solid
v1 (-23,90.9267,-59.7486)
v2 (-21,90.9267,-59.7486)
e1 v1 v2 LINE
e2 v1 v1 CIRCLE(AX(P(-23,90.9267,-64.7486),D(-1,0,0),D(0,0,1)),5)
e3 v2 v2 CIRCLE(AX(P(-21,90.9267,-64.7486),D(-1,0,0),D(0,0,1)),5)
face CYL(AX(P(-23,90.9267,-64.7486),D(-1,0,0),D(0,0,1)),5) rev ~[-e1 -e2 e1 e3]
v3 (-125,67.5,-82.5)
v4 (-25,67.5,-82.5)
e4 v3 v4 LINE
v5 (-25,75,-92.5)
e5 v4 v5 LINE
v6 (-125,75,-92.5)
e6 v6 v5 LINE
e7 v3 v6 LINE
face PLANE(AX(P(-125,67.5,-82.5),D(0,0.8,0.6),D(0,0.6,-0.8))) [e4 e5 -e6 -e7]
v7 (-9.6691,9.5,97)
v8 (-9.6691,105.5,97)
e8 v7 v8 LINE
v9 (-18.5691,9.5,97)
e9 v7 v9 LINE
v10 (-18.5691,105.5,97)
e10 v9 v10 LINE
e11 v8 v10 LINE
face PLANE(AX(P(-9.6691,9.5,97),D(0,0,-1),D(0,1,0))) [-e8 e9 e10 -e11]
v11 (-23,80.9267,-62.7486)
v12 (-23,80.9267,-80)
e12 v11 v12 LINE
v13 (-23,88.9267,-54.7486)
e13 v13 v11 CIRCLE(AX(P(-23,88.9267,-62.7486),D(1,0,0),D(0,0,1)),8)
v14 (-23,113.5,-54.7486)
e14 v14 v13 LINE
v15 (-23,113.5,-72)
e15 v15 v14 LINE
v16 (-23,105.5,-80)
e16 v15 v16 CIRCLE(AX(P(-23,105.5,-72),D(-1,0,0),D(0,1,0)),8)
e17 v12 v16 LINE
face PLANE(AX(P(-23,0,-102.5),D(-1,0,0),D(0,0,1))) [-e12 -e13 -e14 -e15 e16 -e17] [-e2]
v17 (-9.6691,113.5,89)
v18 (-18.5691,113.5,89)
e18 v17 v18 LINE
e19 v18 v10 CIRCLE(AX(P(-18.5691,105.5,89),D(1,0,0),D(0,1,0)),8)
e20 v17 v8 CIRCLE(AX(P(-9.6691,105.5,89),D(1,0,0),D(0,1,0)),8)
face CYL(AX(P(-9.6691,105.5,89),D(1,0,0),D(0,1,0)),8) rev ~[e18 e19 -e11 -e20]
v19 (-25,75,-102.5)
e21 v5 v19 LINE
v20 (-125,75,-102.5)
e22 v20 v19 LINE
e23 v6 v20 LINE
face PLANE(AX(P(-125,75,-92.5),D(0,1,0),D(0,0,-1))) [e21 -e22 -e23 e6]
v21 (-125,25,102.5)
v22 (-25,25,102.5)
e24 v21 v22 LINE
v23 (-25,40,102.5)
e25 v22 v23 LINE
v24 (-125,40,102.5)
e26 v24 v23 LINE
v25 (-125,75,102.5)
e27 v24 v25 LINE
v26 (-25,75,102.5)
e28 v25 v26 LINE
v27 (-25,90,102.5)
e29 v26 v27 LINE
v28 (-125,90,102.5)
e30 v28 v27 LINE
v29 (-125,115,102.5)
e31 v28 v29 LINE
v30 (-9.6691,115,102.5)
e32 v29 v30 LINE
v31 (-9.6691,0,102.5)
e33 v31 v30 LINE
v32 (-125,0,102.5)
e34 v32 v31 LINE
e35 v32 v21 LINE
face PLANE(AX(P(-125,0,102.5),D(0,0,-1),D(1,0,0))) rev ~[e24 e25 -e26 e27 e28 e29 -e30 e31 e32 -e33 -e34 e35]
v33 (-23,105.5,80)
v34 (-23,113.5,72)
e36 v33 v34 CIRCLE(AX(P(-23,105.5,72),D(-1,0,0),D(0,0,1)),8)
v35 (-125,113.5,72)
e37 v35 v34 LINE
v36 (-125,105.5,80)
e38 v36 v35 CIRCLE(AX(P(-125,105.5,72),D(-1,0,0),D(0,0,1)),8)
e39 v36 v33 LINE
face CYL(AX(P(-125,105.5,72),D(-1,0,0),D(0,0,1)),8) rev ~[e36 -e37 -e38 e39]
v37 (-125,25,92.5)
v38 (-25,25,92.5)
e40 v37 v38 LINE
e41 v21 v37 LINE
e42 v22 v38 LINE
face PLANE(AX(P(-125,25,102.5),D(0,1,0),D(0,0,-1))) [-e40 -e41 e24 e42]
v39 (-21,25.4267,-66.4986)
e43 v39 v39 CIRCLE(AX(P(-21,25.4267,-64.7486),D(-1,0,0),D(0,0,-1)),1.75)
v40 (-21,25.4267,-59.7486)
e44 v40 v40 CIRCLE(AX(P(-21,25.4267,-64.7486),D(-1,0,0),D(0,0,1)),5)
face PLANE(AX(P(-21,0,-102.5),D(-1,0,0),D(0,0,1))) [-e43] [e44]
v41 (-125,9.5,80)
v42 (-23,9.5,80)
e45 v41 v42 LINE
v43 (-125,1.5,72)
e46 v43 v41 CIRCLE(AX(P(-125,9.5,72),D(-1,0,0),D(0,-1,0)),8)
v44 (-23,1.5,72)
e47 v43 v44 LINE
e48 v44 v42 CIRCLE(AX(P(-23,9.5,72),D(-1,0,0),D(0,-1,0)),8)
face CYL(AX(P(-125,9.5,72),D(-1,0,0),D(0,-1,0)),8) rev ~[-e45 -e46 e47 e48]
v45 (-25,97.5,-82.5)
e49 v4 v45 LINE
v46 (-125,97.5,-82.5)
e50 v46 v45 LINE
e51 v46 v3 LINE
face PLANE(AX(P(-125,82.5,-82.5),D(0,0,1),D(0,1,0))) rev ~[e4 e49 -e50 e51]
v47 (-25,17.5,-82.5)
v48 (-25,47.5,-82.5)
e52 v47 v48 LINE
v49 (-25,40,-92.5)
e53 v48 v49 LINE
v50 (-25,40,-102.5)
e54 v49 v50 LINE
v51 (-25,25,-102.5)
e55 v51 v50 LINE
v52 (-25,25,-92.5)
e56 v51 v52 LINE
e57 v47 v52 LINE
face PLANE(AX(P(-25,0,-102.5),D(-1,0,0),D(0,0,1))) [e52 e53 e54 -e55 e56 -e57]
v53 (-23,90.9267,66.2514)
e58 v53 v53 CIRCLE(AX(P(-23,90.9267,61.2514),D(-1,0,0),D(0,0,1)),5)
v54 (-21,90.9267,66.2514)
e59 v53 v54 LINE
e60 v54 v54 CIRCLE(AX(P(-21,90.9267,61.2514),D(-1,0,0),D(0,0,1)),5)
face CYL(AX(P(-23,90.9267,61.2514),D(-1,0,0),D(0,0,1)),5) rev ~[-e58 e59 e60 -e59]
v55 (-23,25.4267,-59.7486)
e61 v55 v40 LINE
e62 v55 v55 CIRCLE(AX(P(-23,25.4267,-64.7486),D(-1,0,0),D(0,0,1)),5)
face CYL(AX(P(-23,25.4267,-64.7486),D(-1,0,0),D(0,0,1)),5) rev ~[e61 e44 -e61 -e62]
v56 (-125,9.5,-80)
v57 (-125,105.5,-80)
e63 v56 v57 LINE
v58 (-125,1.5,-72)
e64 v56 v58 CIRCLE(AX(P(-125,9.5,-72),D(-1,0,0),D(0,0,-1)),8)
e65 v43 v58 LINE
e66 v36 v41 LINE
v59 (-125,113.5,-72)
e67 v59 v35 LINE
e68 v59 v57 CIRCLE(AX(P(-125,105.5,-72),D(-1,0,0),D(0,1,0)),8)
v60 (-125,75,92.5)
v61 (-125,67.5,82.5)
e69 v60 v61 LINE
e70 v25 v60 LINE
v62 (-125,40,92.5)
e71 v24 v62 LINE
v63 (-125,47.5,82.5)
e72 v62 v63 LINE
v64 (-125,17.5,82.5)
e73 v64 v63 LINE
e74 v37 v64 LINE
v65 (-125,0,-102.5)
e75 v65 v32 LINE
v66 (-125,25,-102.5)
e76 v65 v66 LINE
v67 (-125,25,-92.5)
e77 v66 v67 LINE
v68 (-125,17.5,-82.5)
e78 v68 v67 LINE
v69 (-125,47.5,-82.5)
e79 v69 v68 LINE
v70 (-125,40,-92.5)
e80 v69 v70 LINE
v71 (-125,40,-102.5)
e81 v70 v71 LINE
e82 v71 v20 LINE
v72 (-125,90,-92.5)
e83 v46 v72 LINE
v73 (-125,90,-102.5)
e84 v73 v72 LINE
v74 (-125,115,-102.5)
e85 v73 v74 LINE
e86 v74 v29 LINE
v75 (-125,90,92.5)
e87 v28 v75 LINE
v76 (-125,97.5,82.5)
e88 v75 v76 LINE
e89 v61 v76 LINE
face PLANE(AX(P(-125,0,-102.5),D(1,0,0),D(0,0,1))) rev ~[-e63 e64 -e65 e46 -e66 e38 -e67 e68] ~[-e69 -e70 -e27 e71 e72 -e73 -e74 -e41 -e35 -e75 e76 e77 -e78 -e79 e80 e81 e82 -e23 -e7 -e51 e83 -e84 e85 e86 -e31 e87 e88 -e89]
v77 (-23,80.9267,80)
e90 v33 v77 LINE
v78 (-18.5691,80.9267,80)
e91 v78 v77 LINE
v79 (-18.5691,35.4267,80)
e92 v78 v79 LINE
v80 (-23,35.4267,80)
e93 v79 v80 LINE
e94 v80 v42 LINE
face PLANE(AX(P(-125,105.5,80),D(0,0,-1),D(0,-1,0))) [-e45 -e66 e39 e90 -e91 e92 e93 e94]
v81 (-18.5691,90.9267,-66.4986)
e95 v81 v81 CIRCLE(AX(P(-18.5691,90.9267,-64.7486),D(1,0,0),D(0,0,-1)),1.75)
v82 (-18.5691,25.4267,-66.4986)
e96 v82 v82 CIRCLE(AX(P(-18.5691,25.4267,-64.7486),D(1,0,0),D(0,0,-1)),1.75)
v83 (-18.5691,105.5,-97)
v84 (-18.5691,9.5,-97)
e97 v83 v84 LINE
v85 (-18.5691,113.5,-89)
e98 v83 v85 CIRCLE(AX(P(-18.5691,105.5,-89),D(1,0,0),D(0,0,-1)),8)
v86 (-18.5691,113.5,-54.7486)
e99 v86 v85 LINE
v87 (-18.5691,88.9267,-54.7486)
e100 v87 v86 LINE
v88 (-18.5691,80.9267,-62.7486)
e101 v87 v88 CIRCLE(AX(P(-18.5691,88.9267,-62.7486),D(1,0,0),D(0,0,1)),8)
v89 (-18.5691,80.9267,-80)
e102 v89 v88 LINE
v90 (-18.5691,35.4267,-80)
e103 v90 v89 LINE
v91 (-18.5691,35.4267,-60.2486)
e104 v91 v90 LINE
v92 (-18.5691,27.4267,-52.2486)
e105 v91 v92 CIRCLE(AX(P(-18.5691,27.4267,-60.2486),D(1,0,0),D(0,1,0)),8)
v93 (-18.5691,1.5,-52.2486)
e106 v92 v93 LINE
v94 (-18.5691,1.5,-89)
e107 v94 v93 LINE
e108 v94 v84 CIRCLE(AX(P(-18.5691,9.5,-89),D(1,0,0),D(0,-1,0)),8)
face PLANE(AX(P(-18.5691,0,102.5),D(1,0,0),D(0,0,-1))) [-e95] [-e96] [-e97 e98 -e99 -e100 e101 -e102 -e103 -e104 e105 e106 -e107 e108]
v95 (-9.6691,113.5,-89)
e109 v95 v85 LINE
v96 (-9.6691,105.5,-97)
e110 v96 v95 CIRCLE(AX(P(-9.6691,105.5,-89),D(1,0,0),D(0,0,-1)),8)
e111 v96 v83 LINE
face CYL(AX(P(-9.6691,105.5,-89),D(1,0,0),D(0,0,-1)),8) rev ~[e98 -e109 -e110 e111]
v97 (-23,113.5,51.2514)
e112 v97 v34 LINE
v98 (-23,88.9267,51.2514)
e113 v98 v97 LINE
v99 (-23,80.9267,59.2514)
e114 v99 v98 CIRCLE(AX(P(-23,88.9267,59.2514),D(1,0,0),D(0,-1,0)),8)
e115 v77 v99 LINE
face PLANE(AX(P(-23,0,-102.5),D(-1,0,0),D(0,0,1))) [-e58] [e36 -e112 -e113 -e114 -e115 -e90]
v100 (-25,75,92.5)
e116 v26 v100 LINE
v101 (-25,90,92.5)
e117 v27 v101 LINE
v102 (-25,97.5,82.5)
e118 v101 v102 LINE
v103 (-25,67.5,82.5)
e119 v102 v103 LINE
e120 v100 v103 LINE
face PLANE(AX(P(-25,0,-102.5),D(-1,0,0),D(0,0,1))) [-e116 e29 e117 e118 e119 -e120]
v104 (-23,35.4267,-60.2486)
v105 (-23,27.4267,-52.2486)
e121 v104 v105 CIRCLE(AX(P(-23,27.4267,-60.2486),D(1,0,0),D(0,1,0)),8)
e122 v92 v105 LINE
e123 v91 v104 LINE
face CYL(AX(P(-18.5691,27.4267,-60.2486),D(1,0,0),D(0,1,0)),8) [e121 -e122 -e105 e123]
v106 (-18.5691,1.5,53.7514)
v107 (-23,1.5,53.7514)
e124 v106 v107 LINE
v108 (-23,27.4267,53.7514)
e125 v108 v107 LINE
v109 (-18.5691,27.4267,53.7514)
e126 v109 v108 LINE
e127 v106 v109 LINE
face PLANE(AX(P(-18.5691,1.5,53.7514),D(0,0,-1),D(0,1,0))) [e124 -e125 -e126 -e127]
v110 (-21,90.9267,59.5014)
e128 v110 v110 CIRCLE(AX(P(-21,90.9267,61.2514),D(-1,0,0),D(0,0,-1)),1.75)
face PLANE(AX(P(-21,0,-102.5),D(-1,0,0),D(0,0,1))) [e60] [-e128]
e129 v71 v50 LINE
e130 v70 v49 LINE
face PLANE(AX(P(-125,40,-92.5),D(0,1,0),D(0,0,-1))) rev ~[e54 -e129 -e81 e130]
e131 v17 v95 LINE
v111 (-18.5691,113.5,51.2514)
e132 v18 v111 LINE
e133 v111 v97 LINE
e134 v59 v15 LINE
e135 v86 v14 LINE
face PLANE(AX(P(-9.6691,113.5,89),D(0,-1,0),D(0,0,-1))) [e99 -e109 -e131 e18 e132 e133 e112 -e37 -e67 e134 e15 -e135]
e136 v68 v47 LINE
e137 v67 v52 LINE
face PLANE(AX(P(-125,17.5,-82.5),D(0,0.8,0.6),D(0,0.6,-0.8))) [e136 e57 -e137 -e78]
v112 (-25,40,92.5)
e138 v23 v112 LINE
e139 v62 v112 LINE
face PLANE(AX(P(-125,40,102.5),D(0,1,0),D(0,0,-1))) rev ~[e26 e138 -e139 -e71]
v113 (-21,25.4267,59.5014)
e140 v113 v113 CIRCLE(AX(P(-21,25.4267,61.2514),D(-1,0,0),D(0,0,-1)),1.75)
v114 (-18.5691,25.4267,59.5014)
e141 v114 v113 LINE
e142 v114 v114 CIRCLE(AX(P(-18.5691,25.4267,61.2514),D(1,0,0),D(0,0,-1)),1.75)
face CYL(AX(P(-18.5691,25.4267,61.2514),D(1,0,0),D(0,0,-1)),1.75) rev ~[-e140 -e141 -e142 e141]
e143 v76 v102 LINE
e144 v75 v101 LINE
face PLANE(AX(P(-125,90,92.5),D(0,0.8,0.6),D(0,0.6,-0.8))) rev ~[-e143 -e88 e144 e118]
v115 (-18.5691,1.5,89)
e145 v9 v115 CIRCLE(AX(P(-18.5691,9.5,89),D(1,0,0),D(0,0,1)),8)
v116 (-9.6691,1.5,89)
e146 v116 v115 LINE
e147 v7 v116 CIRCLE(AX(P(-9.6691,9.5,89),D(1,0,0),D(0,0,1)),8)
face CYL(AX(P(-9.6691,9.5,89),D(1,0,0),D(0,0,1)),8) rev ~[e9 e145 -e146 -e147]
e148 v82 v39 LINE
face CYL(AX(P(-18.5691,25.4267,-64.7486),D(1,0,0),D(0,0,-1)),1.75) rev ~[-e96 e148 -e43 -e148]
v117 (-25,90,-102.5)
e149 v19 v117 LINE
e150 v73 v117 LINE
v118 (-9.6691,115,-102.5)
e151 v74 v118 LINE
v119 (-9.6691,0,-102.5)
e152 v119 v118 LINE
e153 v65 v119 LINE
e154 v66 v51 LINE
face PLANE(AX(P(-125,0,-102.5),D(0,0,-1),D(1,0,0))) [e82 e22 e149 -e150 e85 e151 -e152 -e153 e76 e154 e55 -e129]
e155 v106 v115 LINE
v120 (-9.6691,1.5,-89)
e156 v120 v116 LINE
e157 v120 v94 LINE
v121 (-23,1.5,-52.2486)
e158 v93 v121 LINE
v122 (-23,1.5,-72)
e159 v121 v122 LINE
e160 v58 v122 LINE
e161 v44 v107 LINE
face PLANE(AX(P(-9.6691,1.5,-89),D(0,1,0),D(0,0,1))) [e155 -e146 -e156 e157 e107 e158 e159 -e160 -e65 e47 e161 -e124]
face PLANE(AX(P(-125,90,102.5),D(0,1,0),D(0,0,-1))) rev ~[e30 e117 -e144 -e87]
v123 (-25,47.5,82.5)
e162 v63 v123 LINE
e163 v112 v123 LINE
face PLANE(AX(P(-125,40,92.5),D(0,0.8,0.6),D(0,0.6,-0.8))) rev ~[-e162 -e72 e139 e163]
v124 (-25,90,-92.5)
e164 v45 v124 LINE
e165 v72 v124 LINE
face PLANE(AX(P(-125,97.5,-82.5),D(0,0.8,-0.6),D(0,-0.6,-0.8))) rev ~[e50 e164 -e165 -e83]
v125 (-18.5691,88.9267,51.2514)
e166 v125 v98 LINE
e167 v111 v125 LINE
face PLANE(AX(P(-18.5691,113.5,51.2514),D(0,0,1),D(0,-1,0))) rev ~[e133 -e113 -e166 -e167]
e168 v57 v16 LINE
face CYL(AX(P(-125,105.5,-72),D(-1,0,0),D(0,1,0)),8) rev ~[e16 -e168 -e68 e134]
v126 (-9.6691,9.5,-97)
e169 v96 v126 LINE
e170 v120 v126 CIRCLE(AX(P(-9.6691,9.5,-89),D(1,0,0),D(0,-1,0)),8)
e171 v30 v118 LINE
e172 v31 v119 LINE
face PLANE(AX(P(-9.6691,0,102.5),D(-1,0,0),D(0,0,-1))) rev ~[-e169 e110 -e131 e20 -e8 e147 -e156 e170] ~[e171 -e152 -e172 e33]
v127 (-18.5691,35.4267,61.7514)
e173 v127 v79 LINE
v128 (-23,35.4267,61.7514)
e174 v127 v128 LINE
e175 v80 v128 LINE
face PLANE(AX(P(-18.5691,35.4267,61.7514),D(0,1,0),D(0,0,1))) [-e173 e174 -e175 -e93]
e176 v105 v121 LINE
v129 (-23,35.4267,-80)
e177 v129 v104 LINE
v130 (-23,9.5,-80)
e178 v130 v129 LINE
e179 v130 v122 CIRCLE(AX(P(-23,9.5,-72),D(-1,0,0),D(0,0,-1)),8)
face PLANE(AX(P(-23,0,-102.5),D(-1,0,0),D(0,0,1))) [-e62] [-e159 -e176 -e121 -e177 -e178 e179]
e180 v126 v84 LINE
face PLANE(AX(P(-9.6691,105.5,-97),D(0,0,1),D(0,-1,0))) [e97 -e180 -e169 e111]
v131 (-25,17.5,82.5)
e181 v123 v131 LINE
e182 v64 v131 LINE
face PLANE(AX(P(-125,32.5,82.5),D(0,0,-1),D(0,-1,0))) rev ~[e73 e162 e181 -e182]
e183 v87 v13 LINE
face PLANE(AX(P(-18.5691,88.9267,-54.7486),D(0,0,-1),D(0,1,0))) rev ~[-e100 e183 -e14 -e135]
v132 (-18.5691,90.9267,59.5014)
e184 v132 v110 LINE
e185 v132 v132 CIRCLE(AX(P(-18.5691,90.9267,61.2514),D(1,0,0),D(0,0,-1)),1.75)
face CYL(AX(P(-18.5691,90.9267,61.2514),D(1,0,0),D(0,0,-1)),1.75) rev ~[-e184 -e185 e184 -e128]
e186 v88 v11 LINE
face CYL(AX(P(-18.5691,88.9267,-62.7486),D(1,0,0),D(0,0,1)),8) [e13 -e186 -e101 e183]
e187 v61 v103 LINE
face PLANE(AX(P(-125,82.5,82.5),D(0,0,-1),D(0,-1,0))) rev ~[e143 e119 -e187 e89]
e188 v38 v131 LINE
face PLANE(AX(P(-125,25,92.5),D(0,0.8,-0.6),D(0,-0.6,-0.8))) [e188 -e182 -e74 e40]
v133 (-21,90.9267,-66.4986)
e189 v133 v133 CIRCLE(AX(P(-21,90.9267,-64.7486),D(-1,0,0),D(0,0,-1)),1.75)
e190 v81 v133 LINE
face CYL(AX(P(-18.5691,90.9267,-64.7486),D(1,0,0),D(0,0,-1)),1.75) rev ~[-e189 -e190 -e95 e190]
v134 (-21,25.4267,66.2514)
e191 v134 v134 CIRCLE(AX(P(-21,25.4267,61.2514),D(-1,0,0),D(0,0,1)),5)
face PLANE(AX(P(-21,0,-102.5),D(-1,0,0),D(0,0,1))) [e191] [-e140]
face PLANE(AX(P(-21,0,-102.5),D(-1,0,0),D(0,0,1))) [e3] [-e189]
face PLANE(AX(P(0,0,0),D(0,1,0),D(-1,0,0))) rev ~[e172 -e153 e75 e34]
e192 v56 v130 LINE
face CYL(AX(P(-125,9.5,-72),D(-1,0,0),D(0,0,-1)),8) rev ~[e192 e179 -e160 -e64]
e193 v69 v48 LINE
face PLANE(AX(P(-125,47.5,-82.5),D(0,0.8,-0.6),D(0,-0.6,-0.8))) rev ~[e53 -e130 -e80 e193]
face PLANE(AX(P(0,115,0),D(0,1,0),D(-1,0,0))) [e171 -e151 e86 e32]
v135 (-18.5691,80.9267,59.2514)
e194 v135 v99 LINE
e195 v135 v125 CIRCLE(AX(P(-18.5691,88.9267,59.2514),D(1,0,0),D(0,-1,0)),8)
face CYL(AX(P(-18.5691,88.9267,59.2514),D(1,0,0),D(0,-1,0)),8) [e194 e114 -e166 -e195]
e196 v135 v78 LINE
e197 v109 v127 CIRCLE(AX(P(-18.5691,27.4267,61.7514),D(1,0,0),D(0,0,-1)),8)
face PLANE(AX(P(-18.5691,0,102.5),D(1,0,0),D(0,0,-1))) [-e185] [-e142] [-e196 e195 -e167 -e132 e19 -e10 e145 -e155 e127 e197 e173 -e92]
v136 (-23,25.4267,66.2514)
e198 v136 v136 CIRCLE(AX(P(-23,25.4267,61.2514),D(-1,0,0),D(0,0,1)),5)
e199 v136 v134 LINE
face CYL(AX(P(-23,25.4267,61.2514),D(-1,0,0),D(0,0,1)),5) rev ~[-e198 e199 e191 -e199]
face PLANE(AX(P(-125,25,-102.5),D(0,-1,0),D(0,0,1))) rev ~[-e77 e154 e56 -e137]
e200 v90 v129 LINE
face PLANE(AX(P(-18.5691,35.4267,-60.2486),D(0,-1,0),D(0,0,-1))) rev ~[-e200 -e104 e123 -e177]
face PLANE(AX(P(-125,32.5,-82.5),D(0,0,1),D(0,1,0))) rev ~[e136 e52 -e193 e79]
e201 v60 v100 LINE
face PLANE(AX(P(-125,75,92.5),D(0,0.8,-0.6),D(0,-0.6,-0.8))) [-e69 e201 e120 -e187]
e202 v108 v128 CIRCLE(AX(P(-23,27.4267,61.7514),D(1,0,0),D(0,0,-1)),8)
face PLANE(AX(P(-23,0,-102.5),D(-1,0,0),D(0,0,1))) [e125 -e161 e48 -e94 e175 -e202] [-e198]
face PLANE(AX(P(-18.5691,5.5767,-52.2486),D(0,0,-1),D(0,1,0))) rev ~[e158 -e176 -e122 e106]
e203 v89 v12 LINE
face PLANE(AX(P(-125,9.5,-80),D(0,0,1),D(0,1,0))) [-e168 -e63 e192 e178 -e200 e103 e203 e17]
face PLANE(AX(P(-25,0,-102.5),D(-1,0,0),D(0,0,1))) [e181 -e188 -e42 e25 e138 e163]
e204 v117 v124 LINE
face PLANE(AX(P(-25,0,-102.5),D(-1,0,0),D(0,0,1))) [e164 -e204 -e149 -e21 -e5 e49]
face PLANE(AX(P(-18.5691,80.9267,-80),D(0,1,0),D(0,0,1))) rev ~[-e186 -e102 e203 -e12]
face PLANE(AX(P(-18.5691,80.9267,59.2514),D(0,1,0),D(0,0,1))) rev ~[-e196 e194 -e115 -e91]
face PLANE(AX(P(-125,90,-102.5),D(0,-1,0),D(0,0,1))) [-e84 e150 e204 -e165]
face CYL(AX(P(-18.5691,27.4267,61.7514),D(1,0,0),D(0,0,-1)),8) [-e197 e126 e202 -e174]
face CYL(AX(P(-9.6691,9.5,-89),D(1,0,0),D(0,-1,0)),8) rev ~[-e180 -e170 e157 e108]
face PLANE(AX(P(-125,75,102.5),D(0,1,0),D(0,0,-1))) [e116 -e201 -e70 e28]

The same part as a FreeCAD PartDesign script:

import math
import FreeCAD as App
import Part
import Sketcher

V = App.Vector
Q = App.Units.Quantity


def add_polygon(sketch, points):
    """Adds a closed chain of lines whose ends are joined by coincident constraints."""
    first, n = sketch.GeometryCount, len(points)
    for a, b in zip(points, points[1:] + points[:1]):
        sketch.addGeometry(Part.LineSegment(App.Vector(*a, 0), App.Vector(*b, 0)), False)
    for i in range(n):
        sketch.addConstraint(Sketcher.Constraint("Coincident", first + i, 2, first + (i + 1) % n, 1))

doc = App.newDocument("Part")
params = doc.addObject("Spreadsheet::Sheet", "Params")
for row, (alias, value) in enumerate([
    ("pad1_length", "115 mm"),
    ("sketch2_radius", "8 mm"),
    ("sketch2_width", "96 mm"),
    ("sketch2_height", "144 mm"),
    ("pocket1_length", "102 mm"),
    ("sketch3_width", "15 mm"),
    ("sketch3_height", "10 mm"),
    ("sketch3_width2", "30 mm"),
    ("pocket2_length", "100 mm"),
    ("sketch4_radius", "8 mm"),
    ("sketch4_height", "178 mm"),
    ("pocket3_length", "8.9 mm"),
    ("sketch5_radius", "8 mm"),
    ("sketch5_diameter", "3.5 mm"),
    ("sketch5_height", "106 mm"),
    ("sketch5_width", "45.5 mm"),
    ("pocket4_length", "10 mm"),
    ("sketch6_diameter", "10 mm"),
    ("sketch6_diameter2", "3.5 mm"),
    ("pocket5_length", "2 mm"),
], start=1):
    params.set(f"A{row}", alias)
    params.set(f"B{row}", "=" + value)
    params.setAlias(f"B{row}", alias)

body = doc.addObject("PartDesign::Body", "Body")

# Sketch on XZ plane
sketch1 = body.newObject("Sketcher::SketchObject", "Sketch")
sketch1.AttachmentSupport = (doc.getObject("XZ_Plane"), [""])
sketch1.MapMode = "FlatFace"
add_polygon(sketch1, [(-10, -102), (-125, -102), (-125, 102), (-10, 102)])  # lines 0-3
sketch1.addConstraint(Sketcher.Constraint("Horizontal", 0))
sketch1.addConstraint(Sketcher.Constraint("Vertical", 1))
sketch1.addConstraint(Sketcher.Constraint("Horizontal", 2))
sketch1.addConstraint(Sketcher.Constraint("Vertical", 3))
sketch1.addConstraint(Sketcher.Constraint("DistanceX", 0, 2, -1, 1, Q("125 mm")))
sketch1.addConstraint(Sketcher.Constraint("DistanceY", 0, 2, -1, 1, Q("102.5 mm")))
sketch1.addConstraint(Sketcher.Constraint("DistanceY", -1, 1, 1, 2, Q("102.5 mm")))
sketch1.addConstraint(Sketcher.Constraint("DistanceX", 0, 2, 0, 1, Q("115.331 mm")))
pad1 = body.newObject("PartDesign::Pad", "Pad")
pad1.Profile = sketch1
pad1.setExpression("Length", "Params.pad1_length")
pad1.Reversed = True

# Sketch on YZ plane
sketch2 = body.newObject("Sketcher::SketchObject", "Sketch001")
sketch2.AttachmentSupport = (doc.getObject("YZ_Plane"), [""])
sketch2.MapMode = "FlatFace"
sketch2.AttachmentOffset = App.Placement(V(0, 0, -125), App.Rotation())
sketch2.addGeometry(Part.LineSegment(V(114, 72, 0), V(114, -72, 0)), False)
sketch2.addGeometry(Part.ArcOfCircle(Part.Circle(V(106, -72, 0), V(0, 0, 1), 8), math.radians(-90), math.radians(0)), False)
sketch2.addGeometry(Part.LineSegment(V(106, -80, 0), V(10, -80, 0)), False)
sketch2.addGeometry(Part.ArcOfCircle(Part.Circle(V(10, -72, 0), V(0, 0, 1), 8), math.radians(180), math.radians(270)), False)
sketch2.addGeometry(Part.LineSegment(V(2, -72, 0), V(2, 72, 0)), False)
sketch2.addGeometry(Part.ArcOfCircle(Part.Circle(V(10, 72, 0), V(0, 0, 1), 8), math.radians(90), math.radians(180)), False)
sketch2.addGeometry(Part.LineSegment(V(10, 80, 0), V(106, 80, 0)), False)
sketch2.addGeometry(Part.ArcOfCircle(Part.Circle(V(106, 72, 0), V(0, 0, 1), 8), math.radians(0), math.radians(90)), False)
sketch2.addConstraint(Sketcher.Constraint("Tangent", 0, 2, 1, 2))
sketch2.addConstraint(Sketcher.Constraint("Tangent", 1, 1, 2, 1))
sketch2.addConstraint(Sketcher.Constraint("Tangent", 2, 2, 3, 2))
sketch2.addConstraint(Sketcher.Constraint("Tangent", 3, 1, 4, 1))
sketch2.addConstraint(Sketcher.Constraint("Tangent", 4, 2, 5, 2))
sketch2.addConstraint(Sketcher.Constraint("Tangent", 5, 1, 6, 1))
sketch2.addConstraint(Sketcher.Constraint("Tangent", 6, 2, 7, 2))
sketch2.addConstraint(Sketcher.Constraint("Tangent", 7, 1, 0, 1))
sketch2.addConstraint(Sketcher.Constraint("Vertical", 0))
sketch2.addConstraint(Sketcher.Constraint("Horizontal", 2))
sketch2.addConstraint(Sketcher.Constraint("Vertical", 4))
sketch2.addConstraint(Sketcher.Constraint("Horizontal", 6))
sketch2.addConstraint(Sketcher.Constraint("Equal", 1, 3))
sketch2.addConstraint(Sketcher.Constraint("Equal", 3, 5))
sketch2.addConstraint(Sketcher.Constraint("Equal", 5, 7))
sketch2.addConstraint(Sketcher.Constraint("Radius", 1, Q("8 mm")))
sketch2.addConstraint(Sketcher.Constraint("DistanceX", -1, 1, 3, 1, Q("1.5 mm")))
sketch2.addConstraint(Sketcher.Constraint("DistanceX", 2, 2, 2, 1, Q("96 mm")))
sketch2.addConstraint(Sketcher.Constraint("DistanceY", 0, 2, 0, 1, Q("144 mm")))
sketch2.addConstraint(Sketcher.Constraint("DistanceY", 1, 3, -1, 1, Q("72 mm")))
sketch2.setExpression("Constraints[15]", "Params.sketch2_radius")
sketch2.setExpression("Constraints[17]", "Params.sketch2_width")
sketch2.setExpression("Constraints[18]", "Params.sketch2_height")
pocket1 = body.newObject("PartDesign::Pocket", "Pocket")
pocket1.Profile = sketch2
pocket1.setExpression("Length", "Params.pocket1_length")
pocket1.Reversed = True

# Sketch on YZ plane
sketch3 = body.newObject("Sketcher::SketchObject", "Sketch002")
sketch3.AttachmentSupport = (doc.getObject("YZ_Plane"), [""])
sketch3.MapMode = "FlatFace"
sketch3.AttachmentOffset = App.Placement(V(0, 0, -125), App.Rotation())
add_polygon(sketch3, [(75, 92), (75, 102), (90, 102), (90, 92), (98, 82), (68, 82)])  # lines 0-5
add_polygon(sketch3, [(25, 92), (25, 102), (40, 102), (40, 92), (48, 82), (18, 82)])  # lines 6-11
add_polygon(sketch3, [(90, -102), (75, -102), (75, -92), (68, -82), (98, -82), (90, -92)])  # lines 12-17
add_polygon(sketch3, [(40, -102), (25, -102), (25, -92), (18, -82), (48, -82), (40, -92)])  # lines 18-23
sketch3.addConstraint(Sketcher.Constraint("Vertical", 0))
sketch3.addConstraint(Sketcher.Constraint("Horizontal", 1))
sketch3.addConstraint(Sketcher.Constraint("Vertical", 2))
sketch3.addConstraint(Sketcher.Constraint("Horizontal", 4))
sketch3.addConstraint(Sketcher.Constraint("Vertical", 6))
sketch3.addConstraint(Sketcher.Constraint("Horizontal", 7))
sketch3.addConstraint(Sketcher.Constraint("Vertical", 8))
sketch3.addConstraint(Sketcher.Constraint("Horizontal", 10))
sketch3.addConstraint(Sketcher.Constraint("Horizontal", 12))
sketch3.addConstraint(Sketcher.Constraint("Vertical", 13))
sketch3.addConstraint(Sketcher.Constraint("Horizontal", 15))
sketch3.addConstraint(Sketcher.Constraint("Vertical", 17))
sketch3.addConstraint(Sketcher.Constraint("Horizontal", 18))
sketch3.addConstraint(Sketcher.Constraint("Vertical", 19))
sketch3.addConstraint(Sketcher.Constraint("Horizontal", 21))
sketch3.addConstraint(Sketcher.Constraint("Vertical", 23))
sketch3.addConstraint(Sketcher.Constraint("Symmetric", 0, 2, 12, 2, -1))
sketch3.addConstraint(Sketcher.Constraint("Symmetric", 4, 2, 14, 2, -1))
sketch3.addConstraint(Sketcher.Constraint("Symmetric", 2, 2, 16, 2, -1))
sketch3.addConstraint(Sketcher.Constraint("Symmetric", 6, 2, 18, 2, -1))
sketch3.addConstraint(Sketcher.Constraint("Symmetric", 10, 2, 20, 2, -1))
sketch3.addConstraint(Sketcher.Constraint("Symmetric", 8, 2, 22, 2, -1))
sketch3.addConstraint(Sketcher.Constraint("Parallel", 3, 9))
sketch3.addConstraint(Sketcher.Constraint("Parallel", 5, 11))
sketch3.addConstraint(Sketcher.Constraint("Parallel", 9, 14))
sketch3.addConstraint(Sketcher.Constraint("Parallel", 11, 16))
sketch3.addConstraint(Sketcher.Constraint("Parallel", 14, 20))
sketch3.addConstraint(Sketcher.Constraint("Parallel", 16, 22))
sketch3.addConstraint(Sketcher.Constraint("Horizontal", 2, 2, 5, 2))
sketch3.addConstraint(Sketcher.Constraint("Horizontal", 1, 2, 6, 2))
sketch3.addConstraint(Sketcher.Constraint("Horizontal", 5, 2, 8, 2))
sketch3.addConstraint(Sketcher.Constraint("Horizontal", 4, 2, 9, 2))
sketch3.addConstraint(Sketcher.Constraint("Horizontal", 8, 2, 11, 2))
sketch3.addConstraint(Sketcher.Constraint("Horizontal", 13, 2, 16, 2))
sketch3.addConstraint(Sketcher.Constraint("Equal", 1, 7))
sketch3.addConstraint(Sketcher.Constraint("DistanceX", 1, 1, 1, 2, Q("15 mm")))
sketch3.addConstraint(Sketcher.Constraint("DistanceY", 0, 1, 0, 2, Q("10 mm")))
sketch3.addConstraint(Sketcher.Constraint("DistanceX", -1, 1, 6, 2, Q("25 mm")))
sketch3.addConstraint(Sketcher.Constraint("DistanceY", 3, 2, 2, 2, Q("10 mm")))
sketch3.addConstraint(Sketcher.Constraint("DistanceX", 9, 2, 4, 2, Q("20 mm")))
sketch3.addConstraint(Sketcher.Constraint("DistanceX", 4, 2, 4, 1, Q("30 mm")))
sketch3.addConstraint(Sketcher.Constraint("DistanceY", 12, 2, 4, 2, Q("185 mm")))
sketch3.setExpression("Constraints[59]", "Params.sketch3_width")
sketch3.setExpression("Constraints[60]", "Params.sketch3_height")
sketch3.setExpression("Constraints[64]", "Params.sketch3_width2")
pocket2 = body.newObject("PartDesign::Pocket", "Pocket001")
pocket2.Profile = sketch3
pocket2.setExpression("Length", "Params.pocket2_length")
pocket2.Reversed = True

# Sketch on YZ plane
sketch4 = body.newObject("Sketcher::SketchObject", "Sketch003")
sketch4.AttachmentSupport = (doc.getObject("YZ_Plane"), [""])
sketch4.MapMode = "FlatFace"
sketch4.AttachmentOffset = App.Placement(V(0, 0, -9.6691), App.Rotation())
sketch4.addGeometry(Part.LineSegment(V(2, 89, 0), V(2, -89, 0)), False)
sketch4.addGeometry(Part.ArcOfCircle(Part.Circle(V(10, -89, 0), V(0, 0, 1), 8), math.radians(180), math.radians(270)), False)
sketch4.addGeometry(Part.LineSegment(V(10, -97, 0), V(106, -97, 0)), False)
sketch4.addGeometry(Part.ArcOfCircle(Part.Circle(V(106, -89, 0), V(0, 0, 1), 8), math.radians(-90), math.radians(0)), False)
sketch4.addGeometry(Part.LineSegment(V(114, -89, 0), V(114, 89, 0)), False)
sketch4.addGeometry(Part.ArcOfCircle(Part.Circle(V(106, 89, 0), V(0, 0, 1), 8), math.radians(0), math.radians(90)), False)
sketch4.addGeometry(Part.LineSegment(V(106, 97, 0), V(10, 97, 0)), False)
sketch4.addGeometry(Part.ArcOfCircle(Part.Circle(V(10, 89, 0), V(0, 0, 1), 8), math.radians(90), math.radians(180)), False)
sketch4.addConstraint(Sketcher.Constraint("Tangent", 0, 2, 1, 1))
sketch4.addConstraint(Sketcher.Constraint("Tangent", 1, 2, 2, 1))
sketch4.addConstraint(Sketcher.Constraint("Tangent", 2, 2, 3, 1))
sketch4.addConstraint(Sketcher.Constraint("Tangent", 3, 2, 4, 1))
sketch4.addConstraint(Sketcher.Constraint("Tangent", 4, 2, 5, 1))
sketch4.addConstraint(Sketcher.Constraint("Tangent", 5, 2, 6, 1))
sketch4.addConstraint(Sketcher.Constraint("Tangent", 6, 2, 7, 1))
sketch4.addConstraint(Sketcher.Constraint("Tangent", 7, 2, 0, 1))
sketch4.addConstraint(Sketcher.Constraint("Vertical", 0))
sketch4.addConstraint(Sketcher.Constraint("Horizontal", 2))
sketch4.addConstraint(Sketcher.Constraint("Vertical", 4))
sketch4.addConstraint(Sketcher.Constraint("Horizontal", 6))
sketch4.addConstraint(Sketcher.Constraint("Equal", 1, 3))
sketch4.addConstraint(Sketcher.Constraint("Equal", 3, 5))
sketch4.addConstraint(Sketcher.Constraint("Equal", 5, 7))
sketch4.addConstraint(Sketcher.Constraint("Radius", 1, Q("8 mm")))
sketch4.addConstraint(Sketcher.Constraint("DistanceX", 0, 2, 3, 2, Q("112 mm")))
sketch4.addConstraint(Sketcher.Constraint("DistanceY", 0, 2, 0, 1, Q("178 mm")))
sketch4.addConstraint(Sketcher.Constraint("DistanceY", 1, 3, -1, 1, Q("89 mm")))
sketch4.addConstraint(Sketcher.Constraint("DistanceX", -1, 1, 1, 3, Q("9.5 mm")))
sketch4.setExpression("Constraints[15]", "Params.sketch4_radius")
sketch4.setExpression("Constraints[17]", "Params.sketch4_height")
pocket3 = body.newObject("PartDesign::Pocket", "Pocket002")
pocket3.Profile = sketch4
pocket3.setExpression("Length", "Params.pocket3_length")

# Sketch on YZ plane
sketch5 = body.newObject("Sketcher::SketchObject", "Sketch004")
sketch5.AttachmentSupport = (doc.getObject("YZ_Plane"), [""])
sketch5.MapMode = "FlatFace"
sketch5.AttachmentOffset = App.Placement(V(0, 0, -18.5691), App.Rotation())
sketch5.addGeometry(Part.Circle(V(90.9, 61.3, 0), V(0, 0, 1), 1.8), False)
sketch5.addGeometry(Part.Circle(V(25.4, -64.7, 0), V(0, 0, 1), 1.8), False)
sketch5.addGeometry(Part.Circle(V(25.4, 61.3, 0), V(0, 0, 1), 1.8), False)
sketch5.addGeometry(Part.Circle(V(90.9, -64.7, 0), V(0, 0, 1), 1.8), False)
sketch5.addGeometry(Part.LineSegment(V(35.4, -60.2, 0), V(35.4, -80, 0)), False)
sketch5.addGeometry(Part.LineSegment(V(35.4, -80, 0), V(80.9, -80, 0)), False)
sketch5.addGeometry(Part.LineSegment(V(80.9, -80, 0), V(80.9, -62.7, 0)), False)
sketch5.addGeometry(Part.ArcOfCircle(Part.Circle(V(88.9, -62.7, 0), V(0, 0, 1), 8), math.radians(90), math.radians(180)), False)
sketch5.addGeometry(Part.LineSegment(V(88.9, -54.7, 0), V(113.5, -54.7, 0)), False)
sketch5.addGeometry(Part.LineSegment(V(113.5, -54.7, 0), V(113.5, 51.3, 0)), False)
sketch5.addGeometry(Part.LineSegment(V(113.5, 51.3, 0), V(88.9, 51.3, 0)), False)
sketch5.addGeometry(Part.ArcOfCircle(Part.Circle(V(88.9, 59.3, 0), V(0, 0, 1), 8), math.radians(180), math.radians(270)), False)
sketch5.addGeometry(Part.LineSegment(V(80.9, 59.3, 0), V(80.9, 80, 0)), False)
sketch5.addGeometry(Part.LineSegment(V(80.9, 80, 0), V(35.4, 80, 0)), False)
sketch5.addGeometry(Part.LineSegment(V(35.4, 80, 0), V(35.4, 61.8, 0)), False)
sketch5.addGeometry(Part.ArcOfCircle(Part.Circle(V(27.4, 61.8, 0), V(0, 0, 1), 8), math.radians(-90), math.radians(0)), False)
sketch5.addGeometry(Part.LineSegment(V(27.4, 53.8, 0), V(1.5, 53.8, 0)), False)
sketch5.addGeometry(Part.LineSegment(V(1.5, 53.8, 0), V(1.5, -52.2, 0)), False)
sketch5.addGeometry(Part.LineSegment(V(1.5, -52.2, 0), V(27.4, -52.2, 0)), False)
sketch5.addGeometry(Part.ArcOfCircle(Part.Circle(V(27.4, -60.2, 0), V(0, 0, 1), 8), math.radians(0), math.radians(90)), False)
sketch5.addConstraint(Sketcher.Constraint("Coincident", 4, 2, 5, 1))
sketch5.addConstraint(Sketcher.Constraint("Coincident", 5, 2, 6, 1))
sketch5.addConstraint(Sketcher.Constraint("Tangent", 6, 2, 7, 2))
sketch5.addConstraint(Sketcher.Constraint("Tangent", 7, 1, 8, 1))
sketch5.addConstraint(Sketcher.Constraint("Coincident", 8, 2, 9, 1))
sketch5.addConstraint(Sketcher.Constraint("Coincident", 9, 2, 10, 1))
sketch5.addConstraint(Sketcher.Constraint("Tangent", 10, 2, 11, 2))
sketch5.addConstraint(Sketcher.Constraint("Tangent", 11, 1, 12, 1))
sketch5.addConstraint(Sketcher.Constraint("Coincident", 12, 2, 13, 1))
sketch5.addConstraint(Sketcher.Constraint("Coincident", 13, 2, 14, 1))
sketch5.addConstraint(Sketcher.Constraint("Tangent", 14, 2, 15, 2))
sketch5.addConstraint(Sketcher.Constraint("Tangent", 15, 1, 16, 1))
sketch5.addConstraint(Sketcher.Constraint("Coincident", 16, 2, 17, 1))
sketch5.addConstraint(Sketcher.Constraint("Coincident", 17, 2, 18, 1))
sketch5.addConstraint(Sketcher.Constraint("Tangent", 18, 2, 19, 2))
sketch5.addConstraint(Sketcher.Constraint("Tangent", 19, 1, 4, 1))
sketch5.addConstraint(Sketcher.Constraint("Vertical", 4))
sketch5.addConstraint(Sketcher.Constraint("Horizontal", 5))
sketch5.addConstraint(Sketcher.Constraint("Vertical", 6))
sketch5.addConstraint(Sketcher.Constraint("Horizontal", 8))
sketch5.addConstraint(Sketcher.Constraint("Vertical", 9))
sketch5.addConstraint(Sketcher.Constraint("Horizontal", 10))
sketch5.addConstraint(Sketcher.Constraint("Vertical", 12))
sketch5.addConstraint(Sketcher.Constraint("Horizontal", 13))
sketch5.addConstraint(Sketcher.Constraint("Vertical", 14))
sketch5.addConstraint(Sketcher.Constraint("Horizontal", 16))
sketch5.addConstraint(Sketcher.Constraint("Vertical", 17))
sketch5.addConstraint(Sketcher.Constraint("Horizontal", 18))
sketch5.addConstraint(Sketcher.Constraint("Equal", 0, 1))
sketch5.addConstraint(Sketcher.Constraint("Equal", 1, 2))
sketch5.addConstraint(Sketcher.Constraint("Equal", 2, 3))
sketch5.addConstraint(Sketcher.Constraint("Equal", 7, 11))
sketch5.addConstraint(Sketcher.Constraint("Equal", 11, 15))
sketch5.addConstraint(Sketcher.Constraint("Equal", 15, 19))
sketch5.addConstraint(Sketcher.Constraint("Symmetric", 5, 2, 12, 2, -1))
sketch5.addConstraint(Sketcher.Constraint("Horizontal", 0, 3, 2, 3))
sketch5.addConstraint(Sketcher.Constraint("Horizontal", 1, 3, 3, 3))
sketch5.addConstraint(Sketcher.Constraint("Vertical", 1, 3, 2, 3))
sketch5.addConstraint(Sketcher.Constraint("Vertical", 0, 3, 3, 3))
sketch5.addConstraint(Sketcher.Constraint("Vertical", 15, 3, 19, 3))
sketch5.addConstraint(Sketcher.Constraint("Equal", 9, 17))
sketch5.addConstraint(Sketcher.Constraint("Radius", 7, Q("8 mm")))
sketch5.addConstraint(Sketcher.Constraint("Diameter", 0, Q("3.5 mm")))
sketch5.addConstraint(Sketcher.Constraint("DistanceX", 1, 3, 4, 2, Q("10 mm")))
sketch5.addConstraint(Sketcher.Constraint("DistanceX", 5, 2, 3, 3, Q("10 mm")))
sketch5.addConstraint(Sketcher.Constraint("DistanceY", 3, 3, 7, 1, Q("10 mm")))
sketch5.addConstraint(Sketcher.Constraint("DistanceY", 9, 2, 0, 3, Q("10 mm")))
sketch5.addConstraint(Sketcher.Constraint("DistanceY", 9, 1, 9, 2, Q("106 mm")))
sketch5.addConstraint(Sketcher.Constraint("DistanceX", 5, 1, 5, 2, Q("45.5 mm")))
sketch5.addConstraint(Sketcher.Constraint("DistanceY", 4, 2, -1, 1, Q("80 mm")))
sketch5.addConstraint(Sketcher.Constraint("DistanceX", -1, 1, 8, 2, Q("113.5 mm")))
sketch5.addConstraint(Sketcher.Constraint("DistanceX", -1, 1, 16, 2, Q("1.5 mm")))
sketch5.addConstraint(Sketcher.Constraint("DistanceY", 2, 3, 15, 3, Q("0.5 mm")))
sketch5.addConstraint(Sketcher.Constraint("DistanceX", 8, 1, 8, 2, Q("24.5733 mm")))
sketch5.addConstraint(Sketcher.Constraint("DistanceY", 4, 2, 4, 1, Q("19.7514 mm")))
sketch5.setExpression("Constraints[41]", "Params.sketch5_radius")
sketch5.setExpression("Constraints[42]", "Params.sketch5_diameter")
sketch5.setExpression("Constraints[47]", "Params.sketch5_height")
sketch5.setExpression("Constraints[48]", "Params.sketch5_width")
pocket4 = body.newObject("PartDesign::Pocket", "Pocket003")
pocket4.Profile = sketch5
pocket4.setExpression("Length", "Params.pocket4_length")

# Sketch on YZ plane
sketch6 = body.newObject("Sketcher::SketchObject", "Sketch005")
sketch6.AttachmentSupport = (doc.getObject("YZ_Plane"), [""])
sketch6.MapMode = "FlatFace"
sketch6.AttachmentOffset = App.Placement(V(0, 0, -23), App.Rotation())
sketch6.addGeometry(Part.Circle(V(90.9, -64.7, 0), V(0, 0, 1), 5), False)
sketch6.addGeometry(Part.Circle(V(90.9, -64.7, 0), V(0, 0, 1), 1.8), False)
sketch6.addGeometry(Part.Circle(V(90.9, 61.3, 0), V(0, 0, 1), 5), False)
sketch6.addGeometry(Part.Circle(V(90.9, 61.3, 0), V(0, 0, 1), 1.8), False)
sketch6.addGeometry(Part.Circle(V(25.4, 61.3, 0), V(0, 0, 1), 5), False)
sketch6.addGeometry(Part.Circle(V(25.4, 61.3, 0), V(0, 0, 1), 1.8), False)
sketch6.addGeometry(Part.Circle(V(25.4, -64.7, 0), V(0, 0, 1), 5), False)
sketch6.addGeometry(Part.Circle(V(25.4, -64.7, 0), V(0, 0, 1), 1.8), False)
sketch6.addConstraint(Sketcher.Constraint("Coincident", 1, 3, 0, 3))
sketch6.addConstraint(Sketcher.Constraint("Coincident", 3, 3, 2, 3))
sketch6.addConstraint(Sketcher.Constraint("Coincident", 5, 3, 4, 3))
sketch6.addConstraint(Sketcher.Constraint("Coincident", 7, 3, 6, 3))
sketch6.addConstraint(Sketcher.Constraint("Equal", 0, 2))
sketch6.addConstraint(Sketcher.Constraint("Equal", 1, 3))
sketch6.addConstraint(Sketcher.Constraint("Equal", 2, 4))
sketch6.addConstraint(Sketcher.Constraint("Equal", 3, 5))
sketch6.addConstraint(Sketcher.Constraint("Equal", 4, 6))
sketch6.addConstraint(Sketcher.Constraint("Equal", 5, 7))
sketch6.addConstraint(Sketcher.Constraint("Horizontal", 3, 3, 4, 3))
sketch6.addConstraint(Sketcher.Constraint("Horizontal", 1, 3, 6, 3))
sketch6.addConstraint(Sketcher.Constraint("Vertical", 1, 3, 2, 3))
sketch6.addConstraint(Sketcher.Constraint("Vertical", 5, 3, 6, 3))
sketch6.addConstraint(Sketcher.Constraint("Diameter", 0, Q("10 mm")))
sketch6.addConstraint(Sketcher.Constraint("Diameter", 1, Q("3.5 mm")))
sketch6.addConstraint(Sketcher.Constraint("DistanceY", 0, 3, 2, 3, Q("126 mm")))
sketch6.addConstraint(Sketcher.Constraint("DistanceX", 4, 3, 2, 3, Q("65.5 mm")))
sketch6.addConstraint(Sketcher.Constraint("DistanceX", -1, 1, 0, 3, Q("90.9267 mm")))
sketch6.addConstraint(Sketcher.Constraint("DistanceY", 0, 3, -1, 1, Q("64.7486 mm")))
sketch6.setExpression("Constraints[14]", "Params.sketch6_diameter")
sketch6.setExpression("Constraints[15]", "Params.sketch6_diameter2")
pocket5 = body.newObject("PartDesign::Pocket", "Pocket004")
pocket5.Profile = sketch6
pocket5.setExpression("Length", "Params.pocket5_length")
pocket5.Reversed = True

doc.recompute()
